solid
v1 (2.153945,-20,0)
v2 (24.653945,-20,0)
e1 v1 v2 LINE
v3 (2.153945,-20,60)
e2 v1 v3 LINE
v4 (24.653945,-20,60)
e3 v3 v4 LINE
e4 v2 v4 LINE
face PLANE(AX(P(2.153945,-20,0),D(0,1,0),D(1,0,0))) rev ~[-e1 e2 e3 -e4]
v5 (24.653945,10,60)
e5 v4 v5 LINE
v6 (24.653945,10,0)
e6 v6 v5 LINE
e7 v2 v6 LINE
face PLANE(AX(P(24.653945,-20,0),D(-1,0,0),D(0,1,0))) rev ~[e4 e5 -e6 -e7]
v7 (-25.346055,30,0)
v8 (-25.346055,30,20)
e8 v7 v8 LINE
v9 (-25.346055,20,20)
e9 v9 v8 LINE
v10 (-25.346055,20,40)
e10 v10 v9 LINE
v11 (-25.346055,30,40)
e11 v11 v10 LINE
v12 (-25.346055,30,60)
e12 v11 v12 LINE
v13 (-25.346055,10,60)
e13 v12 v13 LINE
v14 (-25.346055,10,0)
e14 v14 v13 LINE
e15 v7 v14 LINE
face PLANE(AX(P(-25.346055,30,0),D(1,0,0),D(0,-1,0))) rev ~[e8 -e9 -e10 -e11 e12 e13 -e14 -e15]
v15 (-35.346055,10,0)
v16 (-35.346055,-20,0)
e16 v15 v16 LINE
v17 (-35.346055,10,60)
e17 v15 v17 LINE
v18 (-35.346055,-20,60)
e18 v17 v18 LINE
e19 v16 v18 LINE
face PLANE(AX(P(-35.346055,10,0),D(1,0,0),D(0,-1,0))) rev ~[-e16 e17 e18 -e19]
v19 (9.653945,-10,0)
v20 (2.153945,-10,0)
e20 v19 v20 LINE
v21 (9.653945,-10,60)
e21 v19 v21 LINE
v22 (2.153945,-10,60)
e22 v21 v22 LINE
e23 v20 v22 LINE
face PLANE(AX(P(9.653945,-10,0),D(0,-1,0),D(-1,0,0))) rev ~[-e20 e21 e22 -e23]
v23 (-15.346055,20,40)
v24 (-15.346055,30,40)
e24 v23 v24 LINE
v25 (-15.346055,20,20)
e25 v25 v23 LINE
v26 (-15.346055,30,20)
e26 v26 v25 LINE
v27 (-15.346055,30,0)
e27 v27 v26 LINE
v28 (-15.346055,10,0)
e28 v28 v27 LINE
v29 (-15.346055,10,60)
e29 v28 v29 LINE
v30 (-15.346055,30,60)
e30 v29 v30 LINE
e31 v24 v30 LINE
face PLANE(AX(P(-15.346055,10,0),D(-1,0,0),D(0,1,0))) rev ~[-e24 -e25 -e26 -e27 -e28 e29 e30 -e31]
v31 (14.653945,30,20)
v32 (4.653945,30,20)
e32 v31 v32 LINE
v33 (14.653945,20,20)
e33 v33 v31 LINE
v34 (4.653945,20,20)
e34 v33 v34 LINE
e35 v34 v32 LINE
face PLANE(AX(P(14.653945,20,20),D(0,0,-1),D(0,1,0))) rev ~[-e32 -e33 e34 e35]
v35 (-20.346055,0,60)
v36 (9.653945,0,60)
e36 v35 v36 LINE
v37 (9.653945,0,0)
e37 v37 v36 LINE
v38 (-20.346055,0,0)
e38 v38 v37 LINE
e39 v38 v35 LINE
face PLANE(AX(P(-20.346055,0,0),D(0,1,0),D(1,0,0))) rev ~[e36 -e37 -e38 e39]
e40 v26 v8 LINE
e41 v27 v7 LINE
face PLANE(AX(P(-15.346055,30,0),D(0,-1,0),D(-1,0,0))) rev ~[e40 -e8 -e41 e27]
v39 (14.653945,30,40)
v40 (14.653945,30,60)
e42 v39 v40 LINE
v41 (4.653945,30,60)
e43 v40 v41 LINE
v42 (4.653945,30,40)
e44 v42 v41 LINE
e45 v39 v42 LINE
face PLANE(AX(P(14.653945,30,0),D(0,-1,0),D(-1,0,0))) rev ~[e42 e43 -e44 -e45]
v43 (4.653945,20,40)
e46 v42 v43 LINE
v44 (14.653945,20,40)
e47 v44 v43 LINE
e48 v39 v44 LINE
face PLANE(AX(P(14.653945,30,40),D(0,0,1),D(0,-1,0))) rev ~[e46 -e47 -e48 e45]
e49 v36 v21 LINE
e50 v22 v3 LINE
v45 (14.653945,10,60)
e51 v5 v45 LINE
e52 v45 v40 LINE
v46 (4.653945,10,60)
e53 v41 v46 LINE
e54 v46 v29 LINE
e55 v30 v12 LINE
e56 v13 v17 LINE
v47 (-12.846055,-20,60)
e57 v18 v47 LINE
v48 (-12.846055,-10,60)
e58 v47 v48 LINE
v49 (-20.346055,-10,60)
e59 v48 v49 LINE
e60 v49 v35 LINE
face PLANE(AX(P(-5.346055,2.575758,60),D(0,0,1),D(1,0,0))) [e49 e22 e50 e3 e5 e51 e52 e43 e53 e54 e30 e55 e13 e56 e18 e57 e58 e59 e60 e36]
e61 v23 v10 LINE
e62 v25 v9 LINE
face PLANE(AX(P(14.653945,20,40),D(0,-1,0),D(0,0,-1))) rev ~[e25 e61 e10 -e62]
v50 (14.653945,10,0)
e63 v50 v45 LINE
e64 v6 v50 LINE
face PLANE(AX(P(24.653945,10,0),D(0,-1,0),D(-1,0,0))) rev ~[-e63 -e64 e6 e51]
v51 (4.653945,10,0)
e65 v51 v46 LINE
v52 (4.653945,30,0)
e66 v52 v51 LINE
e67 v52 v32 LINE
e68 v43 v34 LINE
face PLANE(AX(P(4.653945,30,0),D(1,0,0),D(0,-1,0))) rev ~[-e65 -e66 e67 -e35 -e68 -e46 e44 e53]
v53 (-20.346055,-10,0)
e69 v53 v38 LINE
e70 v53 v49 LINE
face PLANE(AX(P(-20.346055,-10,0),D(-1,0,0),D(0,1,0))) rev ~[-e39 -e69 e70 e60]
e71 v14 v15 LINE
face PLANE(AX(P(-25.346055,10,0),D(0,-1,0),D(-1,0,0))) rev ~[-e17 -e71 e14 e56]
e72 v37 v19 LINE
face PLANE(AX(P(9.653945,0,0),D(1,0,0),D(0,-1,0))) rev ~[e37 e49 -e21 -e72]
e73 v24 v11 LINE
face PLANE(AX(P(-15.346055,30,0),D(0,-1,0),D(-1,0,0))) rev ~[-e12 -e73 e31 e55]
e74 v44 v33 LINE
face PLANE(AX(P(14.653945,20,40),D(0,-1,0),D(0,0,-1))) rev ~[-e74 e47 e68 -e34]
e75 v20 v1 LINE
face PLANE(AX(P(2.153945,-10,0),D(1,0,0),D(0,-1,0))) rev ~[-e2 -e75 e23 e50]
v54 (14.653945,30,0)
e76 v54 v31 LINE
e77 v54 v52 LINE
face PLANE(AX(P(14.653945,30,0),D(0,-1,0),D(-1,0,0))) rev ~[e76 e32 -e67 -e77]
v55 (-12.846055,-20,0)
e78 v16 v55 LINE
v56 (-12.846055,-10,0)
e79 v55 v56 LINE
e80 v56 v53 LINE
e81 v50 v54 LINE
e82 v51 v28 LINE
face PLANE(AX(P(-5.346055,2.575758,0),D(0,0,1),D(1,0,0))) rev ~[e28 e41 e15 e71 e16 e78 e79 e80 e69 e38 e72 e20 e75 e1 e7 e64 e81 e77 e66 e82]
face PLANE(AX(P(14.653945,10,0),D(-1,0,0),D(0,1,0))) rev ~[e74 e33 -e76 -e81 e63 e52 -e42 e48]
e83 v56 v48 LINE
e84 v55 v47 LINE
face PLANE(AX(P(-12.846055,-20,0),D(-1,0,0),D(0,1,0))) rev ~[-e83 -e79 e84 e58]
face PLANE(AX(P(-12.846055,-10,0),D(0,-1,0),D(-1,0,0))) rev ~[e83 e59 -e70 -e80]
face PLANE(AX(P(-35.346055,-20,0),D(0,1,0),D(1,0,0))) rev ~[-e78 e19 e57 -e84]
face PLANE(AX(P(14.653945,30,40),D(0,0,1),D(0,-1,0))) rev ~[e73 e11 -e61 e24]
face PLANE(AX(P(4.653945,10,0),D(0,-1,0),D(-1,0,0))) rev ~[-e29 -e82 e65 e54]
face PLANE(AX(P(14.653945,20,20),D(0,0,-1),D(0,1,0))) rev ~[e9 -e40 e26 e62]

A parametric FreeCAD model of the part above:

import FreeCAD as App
import Part
import Sketcher
from FreeCAD import Vector


def add_polygon(sketch, points):
    """Adds a closed chain of lines whose ends are joined by coincident constraints."""
    first, n = sketch.GeometryCount, len(points)
    for a, b in zip(points, points[1:] + points[:1]):
        sketch.addGeometry(Part.LineSegment(App.Vector(*a, 0), App.Vector(*b, 0)), False)
    for i in range(n):
        sketch.addConstraint(Sketcher.Constraint("Coincident", first + i, 2, first + (i + 1) % n, 1))

doc = App.newDocument("Part")
body = doc.addObject("PartDesign::Body", "Body")

# Sketch on XY plane
sketch1 = doc.addObject("Sketcher::SketchObject", "Sketch")
body.addObject(sketch1)
sketch1.AttachmentSupport = (doc.XY_Plane, [""])
sketch1.MapMode = "FlatFace"
add_polygon(sketch1, [(-20, 0), (10, 0), (10, -10), (2, -10), (2, -20), (25, -20), (25, 10), (15, 10), (15, 30), (5, 30), (5, 10), (-15, 10), (-15, 30), (-25, 30), (-25, 10), (-35, 10), (-35, -20), (-13, -20), (-13, -10), (-20, -10)])  # lines 0-19
sketch1.addConstraint(Sketcher.Constraint("Horizontal", 0))
sketch1.addConstraint(Sketcher.Constraint("Vertical", 1))
sketch1.addConstraint(Sketcher.Constraint("Horizontal", 2))
sketch1.addConstraint(Sketcher.Constraint("Vertical", 3))
sketch1.addConstraint(Sketcher.Constraint("Horizontal", 4))
sketch1.addConstraint(Sketcher.Constraint("Vertical", 5))
sketch1.addConstraint(Sketcher.Constraint("Horizontal", 6))
sketch1.addConstraint(Sketcher.Constraint("Vertical", 7))
sketch1.addConstraint(Sketcher.Constraint("Horizontal", 8))
sketch1.addConstraint(Sketcher.Constraint("Vertical", 9))
sketch1.addConstraint(Sketcher.Constraint("Horizontal", 10))
sketch1.addConstraint(Sketcher.Constraint("Vertical", 11))
sketch1.addConstraint(Sketcher.Constraint("Horizontal", 12))
sketch1.addConstraint(Sketcher.Constraint("Vertical", 13))
sketch1.addConstraint(Sketcher.Constraint("Horizontal", 14))
sketch1.addConstraint(Sketcher.Constraint("Vertical", 15))
sketch1.addConstraint(Sketcher.Constraint("Horizontal", 16))
sketch1.addConstraint(Sketcher.Constraint("Vertical", 17))
sketch1.addConstraint(Sketcher.Constraint("Horizontal", 18))
sketch1.addConstraint(Sketcher.Constraint("Vertical", 19))
sketch1.addConstraint(Sketcher.Constraint("PointOnObject", 0, 2, -1))
sketch1.addConstraint(Sketcher.Constraint("Horizontal", 6, 2, 9, 2))
sketch1.addConstraint(Sketcher.Constraint("Horizontal", 8, 2, 11, 2))
sketch1.addConstraint(Sketcher.Constraint("Horizontal", 10, 2, 13, 2))
sketch1.addConstraint(Sketcher.Constraint("Horizontal", 4, 2, 15, 2))
sketch1.addConstraint(Sketcher.Constraint("Horizontal", 2, 2, 17, 2))
sketch1.addConstraint(Sketcher.Constraint("Equal", 6, 8))
sketch1.addConstraint(Sketcher.Constraint("Equal", 8, 12))
sketch1.addConstraint(Sketcher.Constraint("Equal", 12, 14))
sketch1.addConstraint(Sketcher.Constraint("Equal", 4, 16))
sketch1.addConstraint(Sketcher.Constraint("Equal", 2, 18))
sketch1.addConstraint(Sketcher.Constraint("Equal", 14, 1))
sketch1.addConstraint(Sketcher.Constraint("Equal", 1, 3))
sketch1.addConstraint(Sketcher.Constraint("Equal", 0, 5))
sketch1.addConstraint(Sketcher.Constraint("Equal", 10, 7))
sketch1.addConstraint(Sketcher.Constraint("DistanceX", 0, 1, 0, 2, 30.0))
sketch1.addConstraint(Sketcher.Constraint("DistanceX", 6, 2, 6, 1, 10.0))
sketch1.addConstraint(Sketcher.Constraint("DistanceX", 10, 2, 10, 1, 20.0))
sketch1.addConstraint(Sketcher.Constraint("DistanceX", 2, 2, 2, 1, 7.5))
sketch1.addConstraint(Sketcher.Constraint("DistanceX", -1, 1, 0, 2, 9.653945))
pad1 = doc.addObject("PartDesign::Pad", "Pad")
body.addObject(pad1)
pad1.Profile = sketch1
pad1.Length = 60

# Sketch on YZ plane
sketch2 = doc.addObject("Sketcher::SketchObject", "Sketch001")
body.addObject(sketch2)
sketch2.AttachmentSupport = (doc.YZ_Plane, [""])
sketch2.MapMode = "FlatFace"
sketch2.AttachmentOffset = App.Placement(Vector(0, 0, 14.653945), App.Rotation())
add_polygon(sketch2, [(30, 20), (30, 40), (20, 40), (20, 20)])  # lines 0-3
sketch2.addConstraint(Sketcher.Constraint("Vertical", 0))
sketch2.addConstraint(Sketcher.Constraint("Horizontal", 1))
sketch2.addConstraint(Sketcher.Constraint("Vertical", 2))
sketch2.addConstraint(Sketcher.Constraint("Horizontal", 3))
sketch2.addConstraint(Sketcher.Constraint("DistanceX", 1, 2, 1, 1, 10.0))
sketch2.addConstraint(Sketcher.Constraint("DistanceY", 0, 1, 0, 2, 20.0))
sketch2.addConstraint(Sketcher.Constraint("DistanceX", -1, 1, 0, 2, 30.0))
sketch2.addConstraint(Sketcher.Constraint("DistanceY", -1, 1, 0, 2, 40.0))
pocket1 = doc.addObject("PartDesign::Pocket", "Pocket")
body.addObject(pocket1)
pocket1.Profile = sketch2
pocket1.Type = "ThroughAll"

doc.recompute()
